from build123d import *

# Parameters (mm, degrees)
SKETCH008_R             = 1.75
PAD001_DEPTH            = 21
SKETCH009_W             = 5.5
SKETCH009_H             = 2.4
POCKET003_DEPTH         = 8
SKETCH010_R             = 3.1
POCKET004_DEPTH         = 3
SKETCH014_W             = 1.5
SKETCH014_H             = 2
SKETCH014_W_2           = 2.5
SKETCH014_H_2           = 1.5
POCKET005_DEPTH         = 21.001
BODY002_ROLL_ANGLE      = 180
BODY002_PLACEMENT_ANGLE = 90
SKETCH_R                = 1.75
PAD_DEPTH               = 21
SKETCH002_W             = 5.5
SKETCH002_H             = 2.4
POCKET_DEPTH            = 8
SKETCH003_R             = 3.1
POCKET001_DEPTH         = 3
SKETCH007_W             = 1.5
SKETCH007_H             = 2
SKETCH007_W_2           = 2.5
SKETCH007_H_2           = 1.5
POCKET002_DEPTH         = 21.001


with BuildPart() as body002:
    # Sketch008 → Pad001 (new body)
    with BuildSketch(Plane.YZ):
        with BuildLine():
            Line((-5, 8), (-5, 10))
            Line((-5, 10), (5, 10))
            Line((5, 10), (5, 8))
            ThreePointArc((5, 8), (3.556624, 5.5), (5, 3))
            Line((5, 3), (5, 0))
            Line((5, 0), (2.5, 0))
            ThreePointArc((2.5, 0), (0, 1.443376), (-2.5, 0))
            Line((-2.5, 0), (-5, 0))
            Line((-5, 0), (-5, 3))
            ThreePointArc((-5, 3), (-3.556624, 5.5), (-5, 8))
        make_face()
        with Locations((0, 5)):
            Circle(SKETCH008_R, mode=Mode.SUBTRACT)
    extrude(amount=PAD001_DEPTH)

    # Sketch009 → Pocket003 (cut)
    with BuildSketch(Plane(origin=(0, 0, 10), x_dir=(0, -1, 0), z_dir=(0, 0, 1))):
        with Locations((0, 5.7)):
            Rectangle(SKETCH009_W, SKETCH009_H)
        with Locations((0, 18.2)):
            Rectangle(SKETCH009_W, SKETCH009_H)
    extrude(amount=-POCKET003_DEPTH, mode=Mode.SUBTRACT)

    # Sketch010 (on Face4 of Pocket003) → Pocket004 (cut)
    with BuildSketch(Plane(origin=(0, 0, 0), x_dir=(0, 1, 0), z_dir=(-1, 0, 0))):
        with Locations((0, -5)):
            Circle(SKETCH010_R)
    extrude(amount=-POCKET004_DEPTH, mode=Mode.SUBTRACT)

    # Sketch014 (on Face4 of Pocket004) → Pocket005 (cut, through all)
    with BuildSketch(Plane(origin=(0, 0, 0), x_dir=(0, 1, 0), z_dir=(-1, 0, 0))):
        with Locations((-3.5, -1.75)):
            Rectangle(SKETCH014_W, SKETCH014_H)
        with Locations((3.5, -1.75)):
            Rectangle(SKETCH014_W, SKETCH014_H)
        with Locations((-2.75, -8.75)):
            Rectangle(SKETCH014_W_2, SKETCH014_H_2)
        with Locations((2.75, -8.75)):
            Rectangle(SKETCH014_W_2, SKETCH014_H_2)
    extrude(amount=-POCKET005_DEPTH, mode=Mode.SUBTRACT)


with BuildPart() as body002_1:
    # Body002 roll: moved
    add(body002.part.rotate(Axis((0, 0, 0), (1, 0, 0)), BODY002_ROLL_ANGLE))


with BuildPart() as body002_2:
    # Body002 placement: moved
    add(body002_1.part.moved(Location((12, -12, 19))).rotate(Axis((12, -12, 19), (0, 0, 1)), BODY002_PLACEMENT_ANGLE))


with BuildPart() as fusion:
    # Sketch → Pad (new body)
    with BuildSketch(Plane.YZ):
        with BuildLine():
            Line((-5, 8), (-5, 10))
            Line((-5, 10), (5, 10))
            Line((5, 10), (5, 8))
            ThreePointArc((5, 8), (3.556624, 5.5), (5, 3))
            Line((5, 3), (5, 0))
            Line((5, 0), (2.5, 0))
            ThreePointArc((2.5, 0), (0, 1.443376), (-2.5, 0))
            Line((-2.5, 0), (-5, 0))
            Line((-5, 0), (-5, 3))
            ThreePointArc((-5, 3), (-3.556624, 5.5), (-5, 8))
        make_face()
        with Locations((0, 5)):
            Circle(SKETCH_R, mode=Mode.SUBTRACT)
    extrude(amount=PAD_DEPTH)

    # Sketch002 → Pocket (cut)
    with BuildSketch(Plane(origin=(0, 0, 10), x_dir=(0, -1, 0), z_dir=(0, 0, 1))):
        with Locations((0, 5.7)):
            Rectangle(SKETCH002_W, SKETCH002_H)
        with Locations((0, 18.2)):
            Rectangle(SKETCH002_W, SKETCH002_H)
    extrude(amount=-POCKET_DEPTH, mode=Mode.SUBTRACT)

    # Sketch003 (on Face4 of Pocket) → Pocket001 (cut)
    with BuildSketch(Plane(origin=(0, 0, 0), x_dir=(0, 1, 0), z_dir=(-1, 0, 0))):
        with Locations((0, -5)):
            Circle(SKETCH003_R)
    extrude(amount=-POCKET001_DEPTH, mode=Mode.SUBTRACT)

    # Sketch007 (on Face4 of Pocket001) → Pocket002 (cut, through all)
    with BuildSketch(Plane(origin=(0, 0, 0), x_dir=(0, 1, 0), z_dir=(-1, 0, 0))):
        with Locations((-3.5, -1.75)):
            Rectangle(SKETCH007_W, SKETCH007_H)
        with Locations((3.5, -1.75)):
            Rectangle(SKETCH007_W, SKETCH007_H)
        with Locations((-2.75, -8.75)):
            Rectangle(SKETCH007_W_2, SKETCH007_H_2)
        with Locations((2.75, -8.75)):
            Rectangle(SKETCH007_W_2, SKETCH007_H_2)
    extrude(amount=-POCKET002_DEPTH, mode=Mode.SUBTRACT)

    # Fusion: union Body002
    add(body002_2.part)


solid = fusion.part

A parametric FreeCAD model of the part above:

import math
import FreeCAD as App
import Part
import Sketcher

V = App.Vector

doc = App.newDocument("Part")
body = doc.addObject("PartDesign::Body", "Body")

sketch1 = body.newObject("Sketcher::SketchObject", "Sketch")
sketch1.AttachmentSupport = (doc.getObject("YZ_Plane"), [""])
sketch1.MapMode = "FlatFace"
sketch1.addGeometry([
    Part.LineSegment(V(-5, 10, 0), V(-5, 8, 0)),
    Part.ArcOfCircle(Part.Circle(V(-6.443375, 5.5, 0), V(0, 0, 1), 2.886751), math.radians(-60.000011), math.radians(60.000011)),
    Part.LineSegment(V(-5, 3, 0), V(-5, 0, 0)),
    Part.LineSegment(V(-5, 0, 0), V(-2.5, 0, 0)),
    Part.ArcOfCircle(Part.Circle(V(0, -1.443375, 0), V(0, 0, 1), 2.886751), math.radians(29.999989), math.radians(150.000011)),
    Part.LineSegment(V(2.5, 0, 0), V(5, 0, 0)),
    Part.LineSegment(V(5, 0, 0), V(5, 3, 0)),
    Part.ArcOfCircle(Part.Circle(V(6.443375, 5.5, 0), V(0, 0, 1), 2.886751), math.radians(119.999989), math.radians(240.000011)),
    Part.LineSegment(V(5, 8, 0), V(5, 10, 0)),
    Part.LineSegment(V(5, 10, 0), V(-5, 10, 0)),
    Part.Circle(V(0, 5, 0), V(0, 0, 1), 1.75),
], False)
sketch1.addConstraint([
    Sketcher.Constraint("Coincident", 0, 2, 1, 2),
    Sketcher.Constraint("Coincident", 1, 1, 2, 1),
    Sketcher.Constraint("Coincident", 2, 2, 3, 1),
    Sketcher.Constraint("Coincident", 3, 2, 4, 2),
    Sketcher.Constraint("Coincident", 4, 1, 5, 1),
    Sketcher.Constraint("Coincident", 5, 2, 6, 1),
    Sketcher.Constraint("Coincident", 6, 2, 7, 2),
    Sketcher.Constraint("Coincident", 7, 1, 8, 1),
    Sketcher.Constraint("Coincident", 8, 2, 9, 1),
    Sketcher.Constraint("Coincident", 9, 2, 0, 1),
    Sketcher.Constraint("Vertical", 0),
    Sketcher.Constraint("Vertical", 2),
    Sketcher.Constraint("Horizontal", 3),
    Sketcher.Constraint("Horizontal", 5),
    Sketcher.Constraint("Vertical", 6),
    Sketcher.Constraint("Vertical", 8),
    Sketcher.Constraint("Horizontal", 9),
    Sketcher.Constraint("Equal", 1, 4),
    Sketcher.Constraint("Equal", 4, 7),
    Sketcher.Constraint("Symmetric", 3, 2, 4, 1, -1, 1),
    Sketcher.Constraint("Symmetric", 1, 3, 7, 3, -2),
    Sketcher.Constraint("Symmetric", 2, 2, 5, 2, -2),
    Sketcher.Constraint("PointOnObject", 10, 3, -2),
    Sketcher.Constraint("Horizontal", 0, 2, 7, 1),
    Sketcher.Constraint("Vertical", 0, 2, 1, 1),
    Sketcher.Constraint("Diameter", 10, 3.5),
    Sketcher.Constraint("DistanceX", 9, 2, 9, 1, 10.0),
    Sketcher.Constraint("DistanceY", 0, 2, 0, 1, 2.0),
    Sketcher.Constraint("DistanceY", 2, 2, 2, 1, 3.0),
    Sketcher.Constraint("DistanceX", 3, 1, 3, 2, 2.5),
    Sketcher.Constraint("DistanceY", -1, 1, 10, 3, 5.0),
    Sketcher.Constraint("DistanceY", -1, 1, 0, 2, 8.0),
    Sketcher.Constraint("Radius", 1, 2.886751),
])
pad1 = body.newObject("PartDesign::Pad", "Pad")
pad1.Profile = sketch1
pad1.Length = 21

sketch2 = body.newObject("Sketcher::SketchObject", "Sketch001")
sketch2.AttachmentSupport = (doc.getObject("XY_Plane"), [""])
sketch2.MapMode = "FlatFace"
sketch2.AttachmentOffset = App.Placement(V(0, 0, 10), App.Rotation())
sketch2.addGeometry([
    Part.LineSegment(V(6.9, 2.75, 0), V(4.5, 2.75, 0)),
    Part.LineSegment(V(4.5, 2.75, 0), V(4.5, -2.75, 0)),
    Part.LineSegment(V(4.5, -2.75, 0), V(6.9, -2.75, 0)),
    Part.LineSegment(V(6.9, -2.75, 0), V(6.9, 2.75, 0)),
    Part.LineSegment(V(19.4, 2.75, 0), V(17, 2.75, 0)),
    Part.LineSegment(V(17, 2.75, 0), V(17, -2.75, 0)),
    Part.LineSegment(V(17, -2.75, 0), V(19.4, -2.75, 0)),
    Part.LineSegment(V(19.4, -2.75, 0), V(19.4, 2.75, 0)),
], False)
sketch2.addConstraint([
    Sketcher.Constraint("Coincident", 0, 2, 1, 1),
    Sketcher.Constraint("Coincident", 1, 2, 2, 1),
    Sketcher.Constraint("Coincident", 2, 2, 3, 1),
    Sketcher.Constraint("Coincident", 3, 2, 0, 1),
    Sketcher.Constraint("Coincident", 4, 2, 5, 1),
    Sketcher.Constraint("Coincident", 5, 2, 6, 1),
    Sketcher.Constraint("Coincident", 6, 2, 7, 1),
    Sketcher.Constraint("Coincident", 7, 2, 4, 1),
    Sketcher.Constraint("Horizontal", 0),
    Sketcher.Constraint("Vertical", 1),
    Sketcher.Constraint("Horizontal", 2),
    Sketcher.Constraint("Vertical", 3),
    Sketcher.Constraint("Horizontal", 4),
    Sketcher.Constraint("Vertical", 5),
    Sketcher.Constraint("Horizontal", 6),
    Sketcher.Constraint("Vertical", 7),
    Sketcher.Constraint("Horizontal", 3, 2, 4, 2),
    Sketcher.Constraint("Horizontal", 2, 2, 5, 2),
    Sketcher.Constraint("Equal", 2, 4),
    Sketcher.Constraint("DistanceX", 0, 2, 0, 1, 2.4),
    Sketcher.Constraint("DistanceY", 1, 2, 1, 1, 5.5),
    Sketcher.Constraint("DistanceX", -1, 1, 4, 2, 17.0),
    Sketcher.Constraint("DistanceX", -1, 1, 0, 2, 4.5),
    Sketcher.Constraint("DistanceY", -1, 1, 0, 2, 2.75),
])
pocket1 = body.newObject("PartDesign::Pocket", "Pocket")
pocket1.Profile = sketch2
pocket1.Length = 8

sketch3 = body.newObject("Sketcher::SketchObject", "Sketch002")
sketch3.AttachmentSupport = (doc.getObject("YZ_Plane"), [""])
sketch3.MapMode = "FlatFace"
sketch3.addGeometry(Part.Circle(V(0, 5, 0), V(0, 0, 1), 3.1), False)
sketch3.addConstraint([
    Sketcher.Constraint("PointOnObject", 0, 3, -2),
    Sketcher.Constraint("Diameter", 0, 6.2),
    Sketcher.Constraint("DistanceY", -1, 1, 0, 3, 5.0),
])
pocket2 = body.newObject("PartDesign::Pocket", "Pocket001")
pocket2.Profile = sketch3
pocket2.Length = 3
pocket2.Reversed = True

sketch4 = body.newObject("Sketcher::SketchObject", "Sketch003")
sketch4.AttachmentSupport = (doc.getObject("YZ_Plane"), [""])
sketch4.MapMode = "FlatFace"
sketch4.addGeometry([
    Part.LineSegment(V(-4.25, 0.75, 0), V(-4.25, 2.75, 0)),
    Part.LineSegment(V(-4.25, 2.75, 0), V(-2.75, 2.75, 0)),
    Part.LineSegment(V(-2.75, 2.75, 0), V(-2.75, 0.75, 0)),
    Part.LineSegment(V(-2.75, 0.75, 0), V(-4.25, 0.75, 0)),
    Part.LineSegment(V(2.75, 0.75, 0), V(2.75, 2.75, 0)),
    Part.LineSegment(V(2.75, 2.75, 0), V(4.25, 2.75, 0)),
    Part.LineSegment(V(4.25, 2.75, 0), V(4.25, 0.75, 0)),
    Part.LineSegment(V(4.25, 0.75, 0), V(2.75, 0.75, 0)),
    Part.LineSegment(V(-4, 8, 0), V(-4, 9.5, 0)),
    Part.LineSegment(V(-4, 9.5, 0), V(-1.5, 9.5, 0)),
    Part.LineSegment(V(-1.5, 9.5, 0), V(-1.5, 8, 0)),
    Part.LineSegment(V(-1.5, 8, 0), V(-4, 8, 0)),
    Part.LineSegment(V(1.5, 8, 0), V(1.5, 9.5, 0)),
    Part.LineSegment(V(1.5, 9.5, 0), V(4, 9.5, 0)),
    Part.LineSegment(V(4, 9.5, 0), V(4, 8, 0)),
    Part.LineSegment(V(4, 8, 0), V(1.5, 8, 0)),
], False)
sketch4.addConstraint([
    Sketcher.Constraint("Coincident", 0, 2, 1, 1),
    Sketcher.Constraint("Coincident", 1, 2, 2, 1),
    Sketcher.Constraint("Coincident", 2, 2, 3, 1),
    Sketcher.Constraint("Coincident", 3, 2, 0, 1),
    Sketcher.Constraint("Coincident", 4, 2, 5, 1),
    Sketcher.Constraint("Coincident", 5, 2, 6, 1),
    Sketcher.Constraint("Coincident", 6, 2, 7, 1),
    Sketcher.Constraint("Coincident", 7, 2, 4, 1),
    Sketcher.Constraint("Coincident", 8, 2, 9, 1),
    Sketcher.Constraint("Coincident", 9, 2, 10, 1),
    Sketcher.Constraint("Coincident", 10, 2, 11, 1),
    Sketcher.Constraint("Coincident", 11, 2, 8, 1),
    Sketcher.Constraint("Coincident", 12, 2, 13, 1),
    Sketcher.Constraint("Coincident", 13, 2, 14, 1),
    Sketcher.Constraint("Coincident", 14, 2, 15, 1),
    Sketcher.Constraint("Coincident", 15, 2, 12, 1),
    Sketcher.Constraint("Vertical", 0),
    Sketcher.Constraint("Horizontal", 1),
    Sketcher.Constraint("Vertical", 2),
    Sketcher.Constraint("Horizontal", 3),
    Sketcher.Constraint("Vertical", 4),
    Sketcher.Constraint("Horizontal", 5),
    Sketcher.Constraint("Vertical", 6),
    Sketcher.Constraint("Horizontal", 7),
    Sketcher.Constraint("Vertical", 8),
    Sketcher.Constraint("Horizontal", 9),
    Sketcher.Constraint("Vertical", 10),
    Sketcher.Constraint("Horizontal", 11),
    Sketcher.Constraint("Vertical", 12),
    Sketcher.Constraint("Horizontal", 13),
    Sketcher.Constraint("Vertical", 14),
    Sketcher.Constraint("Horizontal", 15),
    Sketcher.Constraint("Symmetric", 1, 2, 4, 2, -2),
    Sketcher.Constraint("Symmetric", 3, 2, 6, 2, -2),
    Sketcher.Constraint("Symmetric", 9, 2, 12, 2, -2),
    Sketcher.Constraint("Symmetric", 11, 2, 14, 2, -2),
    Sketcher.Constraint("Equal", 7, 8),
    Sketcher.Constraint("DistanceY", 0, 1, 0, 2, 2.0),
    Sketcher.Constraint("DistanceX", 1, 1, 1, 2, 1.5),
    Sketcher.Constraint("DistanceX", 9, 1, 9, 2, 2.5),
    Sketcher.Constraint("DistanceX", 8, 2, -1, 1, 4.0),
    Sketcher.Constraint("DistanceY", -1, 1, 10, 2, 8.0),
    Sketcher.Constraint("DistanceX", 0, 2, 4, 2, 7.0),
    Sketcher.Constraint("DistanceY", -1, 1, 0, 2, 2.75),
])
pocket3 = body.newObject("PartDesign::Pocket", "Pocket002")
pocket3.Profile = sketch4
pocket3.Type = "ThroughAll"
pocket3.Reversed = True
body2 = doc.addObject("PartDesign::Body", "Body001")
doc.recompute()

body.Placement = App.Placement(V(0, 0, 0), App.Rotation(V(1, 0, 0), 180))
boolean = body2.newObject("PartDesign::Boolean", "Boolean")
boolean.Type = "Fuse"
boolean.addObjects([body])
body3 = doc.addObject("PartDesign::Body", "Body002")
doc.recompute()

body2.Placement = App.Placement(V(12, -12, 19), App.Rotation(V(0, 0, 1), 90))
boolean2 = body3.newObject("PartDesign::Boolean", "Boolean001")
boolean2.Type = "Fuse"
boolean2.addObjects([body2])
body4 = doc.addObject("PartDesign::Body", "Body003")

sketch5 = body4.newObject("Sketcher::SketchObject", "Sketch004")
sketch5.AttachmentSupport = (doc.getObject("YZ_Plane003"), [""])
sketch5.MapMode = "FlatFace"
sketch5.addGeometry([
    Part.LineSegment(V(-5, 10, 0), V(-5, 8, 0)),
    Part.ArcOfCircle(Part.Circle(V(-6.443375, 5.5, 0), V(0, 0, 1), 2.886751), math.radians(-60.000011), math.radians(60.000011)),
    Part.LineSegment(V(-5, 3, 0), V(-5, 0, 0)),
    Part.LineSegment(V(-5, 0, 0), V(-2.5, 0, 0)),
    Part.ArcOfCircle(Part.Circle(V(0, -1.443375, 0), V(0, 0, 1), 2.886751), math.radians(29.999989), math.radians(150.000011)),
    Part.LineSegment(V(2.5, 0, 0), V(5, 0, 0)),
    Part.LineSegment(V(5, 0, 0), V(5, 3, 0)),
    Part.ArcOfCircle(Part.Circle(V(6.443375, 5.5, 0), V(0, 0, 1), 2.886751), math.radians(119.999989), math.radians(240.000011)),
    Part.LineSegment(V(5, 8, 0), V(5, 10, 0)),
    Part.LineSegment(V(5, 10, 0), V(-5, 10, 0)),
    Part.Circle(V(0, 5, 0), V(0, 0, 1), 1.75),
], False)
sketch5.addConstraint([
    Sketcher.Constraint("Coincident", 0, 2, 1, 2),
    Sketcher.Constraint("Coincident", 1, 1, 2, 1),
    Sketcher.Constraint("Coincident", 2, 2, 3, 1),
    Sketcher.Constraint("Coincident", 3, 2, 4, 2),
    Sketcher.Constraint("Coincident", 4, 1, 5, 1),
    Sketcher.Constraint("Coincident", 5, 2, 6, 1),
    Sketcher.Constraint("Coincident", 6, 2, 7, 2),
    Sketcher.Constraint("Coincident", 7, 1, 8, 1),
    Sketcher.Constraint("Coincident", 8, 2, 9, 1),
    Sketcher.Constraint("Coincident", 9, 2, 0, 1),
    Sketcher.Constraint("Vertical", 0),
    Sketcher.Constraint("Vertical", 2),
    Sketcher.Constraint("Horizontal", 3),
    Sketcher.Constraint("Horizontal", 5),
    Sketcher.Constraint("Vertical", 6),
    Sketcher.Constraint("Vertical", 8),
    Sketcher.Constraint("Horizontal", 9),
    Sketcher.Constraint("Equal", 1, 4),
    Sketcher.Constraint("Equal", 4, 7),
    Sketcher.Constraint("Symmetric", 3, 2, 4, 1, -1, 1),
    Sketcher.Constraint("Symmetric", 1, 3, 7, 3, -2),
    Sketcher.Constraint("Symmetric", 2, 2, 5, 2, -2),
    Sketcher.Constraint("PointOnObject", 10, 3, -2),
    Sketcher.Constraint("Horizontal", 0, 2, 7, 1),
    Sketcher.Constraint("Vertical", 0, 2, 1, 1),
    Sketcher.Constraint("Diameter", 10, 3.5),
    Sketcher.Constraint("DistanceX", 9, 2, 9, 1, 10.0),
    Sketcher.Constraint("DistanceY", 0, 2, 0, 1, 2.0),
    Sketcher.Constraint("DistanceY", 2, 2, 2, 1, 3.0),
    Sketcher.Constraint("DistanceX", 3, 1, 3, 2, 2.5),
    Sketcher.Constraint("DistanceY", -1, 1, 10, 3, 5.0),
    Sketcher.Constraint("DistanceY", -1, 1, 0, 2, 8.0),
    Sketcher.Constraint("Radius", 1, 2.886751),
])
pad2 = body4.newObject("PartDesign::Pad", "Pad001")
pad2.Profile = sketch5
pad2.Length = 21

sketch6 = body4.newObject("Sketcher::SketchObject", "Sketch005")
sketch6.AttachmentSupport = (doc.getObject("XY_Plane003"), [""])
sketch6.MapMode = "FlatFace"
sketch6.AttachmentOffset = App.Placement(V(0, 0, 10), App.Rotation())
sketch6.addGeometry([
    Part.LineSegment(V(6.9, 2.75, 0), V(4.5, 2.75, 0)),
    Part.LineSegment(V(4.5, 2.75, 0), V(4.5, -2.75, 0)),
    Part.LineSegment(V(4.5, -2.75, 0), V(6.9, -2.75, 0)),
    Part.LineSegment(V(6.9, -2.75, 0), V(6.9, 2.75, 0)),
    Part.LineSegment(V(19.4, 2.75, 0), V(17, 2.75, 0)),
    Part.LineSegment(V(17, 2.75, 0), V(17, -2.75, 0)),
    Part.LineSegment(V(17, -2.75, 0), V(19.4, -2.75, 0)),
    Part.LineSegment(V(19.4, -2.75, 0), V(19.4, 2.75, 0)),
], False)
sketch6.addConstraint([
    Sketcher.Constraint("Coincident", 0, 2, 1, 1),
    Sketcher.Constraint("Coincident", 1, 2, 2, 1),
    Sketcher.Constraint("Coincident", 2, 2, 3, 1),
    Sketcher.Constraint("Coincident", 3, 2, 0, 1),
    Sketcher.Constraint("Coincident", 4, 2, 5, 1),
    Sketcher.Constraint("Coincident", 5, 2, 6, 1),
    Sketcher.Constraint("Coincident", 6, 2, 7, 1),
    Sketcher.Constraint("Coincident", 7, 2, 4, 1),
    Sketcher.Constraint("Horizontal", 0),
    Sketcher.Constraint("Vertical", 1),
    Sketcher.Constraint("Horizontal", 2),
    Sketcher.Constraint("Vertical", 3),
    Sketcher.Constraint("Horizontal", 4),
    Sketcher.Constraint("Vertical", 5),
    Sketcher.Constraint("Horizontal", 6),
    Sketcher.Constraint("Vertical", 7),
    Sketcher.Constraint("Horizontal", 3, 2, 4, 2),
    Sketcher.Constraint("Horizontal", 2, 2, 5, 2),
    Sketcher.Constraint("Equal", 2, 4),
    Sketcher.Constraint("DistanceX", 0, 2, 0, 1, 2.4),
    Sketcher.Constraint("DistanceY", 1, 2, 1, 1, 5.5),
    Sketcher.Constraint("DistanceX", -1, 1, 4, 2, 17.0),
    Sketcher.Constraint("DistanceX", -1, 1, 0, 2, 4.5),
    Sketcher.Constraint("DistanceY", -1, 1, 0, 2, 2.75),
])
pocket4 = body4.newObject("PartDesign::Pocket", "Pocket003")
pocket4.Profile = sketch6
pocket4.Length = 8

sketch7 = body4.newObject("Sketcher::SketchObject", "Sketch006")
sketch7.AttachmentSupport = (doc.getObject("YZ_Plane003"), [""])
sketch7.MapMode = "FlatFace"
sketch7.addGeometry(Part.Circle(V(0, 5, 0), V(0, 0, 1), 3.1), False)
sketch7.addConstraint([
    Sketcher.Constraint("PointOnObject", 0, 3, -2),
    Sketcher.Constraint("Diameter", 0, 6.2),
    Sketcher.Constraint("DistanceY", -1, 1, 0, 3, 5.0),
])
pocket5 = body4.newObject("PartDesign::Pocket", "Pocket004")
pocket5.Profile = sketch7
pocket5.Length = 3
pocket5.Reversed = True

sketch8 = body4.newObject("Sketcher::SketchObject", "Sketch007")
sketch8.AttachmentSupport = (doc.getObject("YZ_Plane003"), [""])
sketch8.MapMode = "FlatFace"
sketch8.addGeometry([
    Part.LineSegment(V(-4.25, 0.75, 0), V(-4.25, 2.75, 0)),
    Part.LineSegment(V(-4.25, 2.75, 0), V(-2.75, 2.75, 0)),
    Part.LineSegment(V(-2.75, 2.75, 0), V(-2.75, 0.75, 0)),
    Part.LineSegment(V(-2.75, 0.75, 0), V(-4.25, 0.75, 0)),
    Part.LineSegment(V(2.75, 0.75, 0), V(2.75, 2.75, 0)),
    Part.LineSegment(V(2.75, 2.75, 0), V(4.25, 2.75, 0)),
    Part.LineSegment(V(4.25, 2.75, 0), V(4.25, 0.75, 0)),
    Part.LineSegment(V(4.25, 0.75, 0), V(2.75, 0.75, 0)),
    Part.LineSegment(V(-4, 8, 0), V(-4, 9.5, 0)),
    Part.LineSegment(V(-4, 9.5, 0), V(-1.5, 9.5, 0)),
    Part.LineSegment(V(-1.5, 9.5, 0), V(-1.5, 8, 0)),
    Part.LineSegment(V(-1.5, 8, 0), V(-4, 8, 0)),
    Part.LineSegment(V(1.5, 8, 0), V(1.5, 9.5, 0)),
    Part.LineSegment(V(1.5, 9.5, 0), V(4, 9.5, 0)),
    Part.LineSegment(V(4, 9.5, 0), V(4, 8, 0)),
    Part.LineSegment(V(4, 8, 0), V(1.5, 8, 0)),
], False)
sketch8.addConstraint([
    Sketcher.Constraint("Coincident", 0, 2, 1, 1),
    Sketcher.Constraint("Coincident", 1, 2, 2, 1),
    Sketcher.Constraint("Coincident", 2, 2, 3, 1),
    Sketcher.Constraint("Coincident", 3, 2, 0, 1),
    Sketcher.Constraint("Coincident", 4, 2, 5, 1),
    Sketcher.Constraint("Coincident", 5, 2, 6, 1),
    Sketcher.Constraint("Coincident", 6, 2, 7, 1),
    Sketcher.Constraint("Coincident", 7, 2, 4, 1),
    Sketcher.Constraint("Coincident", 8, 2, 9, 1),
    Sketcher.Constraint("Coincident", 9, 2, 10, 1),
    Sketcher.Constraint("Coincident", 10, 2, 11, 1),
    Sketcher.Constraint("Coincident", 11, 2, 8, 1),
    Sketcher.Constraint("Coincident", 12, 2, 13, 1),
    Sketcher.Constraint("Coincident", 13, 2, 14, 1),
    Sketcher.Constraint("Coincident", 14, 2, 15, 1),
    Sketcher.Constraint("Coincident", 15, 2, 12, 1),
    Sketcher.Constraint("Vertical", 0),
    Sketcher.Constraint("Horizontal", 1),
    Sketcher.Constraint("Vertical", 2),
    Sketcher.Constraint("Horizontal", 3),
    Sketcher.Constraint("Vertical", 4),
    Sketcher.Constraint("Horizontal", 5),
    Sketcher.Constraint("Vertical", 6),
    Sketcher.Constraint("Horizontal", 7),
    Sketcher.Constraint("Vertical", 8),
    Sketcher.Constraint("Horizontal", 9),
    Sketcher.Constraint("Vertical", 10),
    Sketcher.Constraint("Horizontal", 11),
    Sketcher.Constraint("Vertical", 12),
    Sketcher.Constraint("Horizontal", 13),
    Sketcher.Constraint("Vertical", 14),
    Sketcher.Constraint("Horizontal", 15),
    Sketcher.Constraint("Symmetric", 1, 2, 4, 2, -2),
    Sketcher.Constraint("Symmetric", 3, 2, 6, 2, -2),
    Sketcher.Constraint("Symmetric", 9, 2, 12, 2, -2),
    Sketcher.Constraint("Symmetric", 11, 2, 14, 2, -2),
    Sketcher.Constraint("Equal", 7, 8),
    Sketcher.Constraint("DistanceY", 0, 1, 0, 2, 2.0),
    Sketcher.Constraint("DistanceX", 1, 1, 1, 2, 1.5),
    Sketcher.Constraint("DistanceX", 9, 1, 9, 2, 2.5),
    Sketcher.Constraint("DistanceX", 8, 2, -1, 1, 4.0),
    Sketcher.Constraint("DistanceY", -1, 1, 10, 2, 8.0),
    Sketcher.Constraint("DistanceX", 0, 2, 4, 2, 7.0),
    Sketcher.Constraint("DistanceY", -1, 1, 0, 2, 2.75),
])
pocket6 = body4.newObject("PartDesign::Pocket", "Pocket005")
pocket6.Profile = sketch8
pocket6.Type = "ThroughAll"
pocket6.Reversed = True
doc.recompute()

boolean3 = body4.newObject("PartDesign::Boolean", "Boolean002")
boolean3.Type = "Fuse"
boolean3.addObjects([body3])

doc.recompute()
